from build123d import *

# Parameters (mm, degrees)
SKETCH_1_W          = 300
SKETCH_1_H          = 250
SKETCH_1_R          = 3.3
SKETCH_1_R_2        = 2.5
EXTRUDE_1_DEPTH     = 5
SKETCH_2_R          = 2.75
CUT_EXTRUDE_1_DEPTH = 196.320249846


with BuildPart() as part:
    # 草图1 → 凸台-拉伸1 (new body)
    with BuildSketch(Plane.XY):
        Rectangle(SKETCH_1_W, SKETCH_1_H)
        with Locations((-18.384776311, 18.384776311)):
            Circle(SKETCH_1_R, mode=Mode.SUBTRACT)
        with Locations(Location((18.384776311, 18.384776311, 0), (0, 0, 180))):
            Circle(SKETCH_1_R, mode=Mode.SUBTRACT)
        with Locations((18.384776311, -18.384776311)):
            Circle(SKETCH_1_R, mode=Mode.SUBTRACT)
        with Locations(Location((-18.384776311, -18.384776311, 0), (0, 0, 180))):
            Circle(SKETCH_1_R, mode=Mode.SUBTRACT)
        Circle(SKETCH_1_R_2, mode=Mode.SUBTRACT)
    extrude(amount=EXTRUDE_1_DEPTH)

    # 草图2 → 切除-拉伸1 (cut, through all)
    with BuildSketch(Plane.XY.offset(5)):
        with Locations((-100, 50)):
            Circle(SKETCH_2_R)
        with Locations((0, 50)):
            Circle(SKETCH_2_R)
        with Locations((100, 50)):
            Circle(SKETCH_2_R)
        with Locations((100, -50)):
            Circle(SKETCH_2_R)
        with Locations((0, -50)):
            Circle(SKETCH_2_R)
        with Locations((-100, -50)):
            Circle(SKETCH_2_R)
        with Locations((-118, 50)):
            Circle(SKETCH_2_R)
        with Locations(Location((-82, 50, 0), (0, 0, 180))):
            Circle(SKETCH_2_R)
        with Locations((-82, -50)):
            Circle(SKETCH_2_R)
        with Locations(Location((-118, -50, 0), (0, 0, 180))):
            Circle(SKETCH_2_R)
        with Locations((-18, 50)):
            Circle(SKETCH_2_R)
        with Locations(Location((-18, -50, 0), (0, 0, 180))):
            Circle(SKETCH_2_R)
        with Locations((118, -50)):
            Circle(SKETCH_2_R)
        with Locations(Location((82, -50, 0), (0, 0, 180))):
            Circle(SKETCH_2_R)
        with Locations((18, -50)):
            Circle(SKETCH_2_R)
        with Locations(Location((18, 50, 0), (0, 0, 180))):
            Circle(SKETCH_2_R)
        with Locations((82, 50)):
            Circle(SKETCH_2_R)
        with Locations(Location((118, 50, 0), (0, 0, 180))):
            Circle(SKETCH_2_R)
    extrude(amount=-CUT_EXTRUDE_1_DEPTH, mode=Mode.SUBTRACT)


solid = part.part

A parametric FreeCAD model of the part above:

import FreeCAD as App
import Part
import Sketcher

doc = App.newDocument("Part")
params = doc.addObject("Spreadsheet::Sheet", "Params")
for row, (alias, value) in enumerate([
    ("sketch1_diameter", "5 mm"),
    ("sketch1_diameter2", "6.6 mm"),
    ("sketch1_width", "300 mm"),
    ("sketch1_height", "250 mm"),
    ("pad1_length", "5 mm"),
    ("sketch2_diameter", "5.5 mm"),
], start=1):
    params.set(f"A{row}", alias)
    params.set(f"B{row}", "=" + value)
    params.setAlias(f"B{row}", alias)

body = doc.addObject("PartDesign::Body", "Body")

# Sketch on XY plane
sketch1 = doc.addObject("Sketcher::SketchObject", "Sketch")
body.addObject(sketch1)
sketch1.AttachmentSupport = (doc.XY_Plane, [""])
sketch1.MapMode = "FlatFace"
sketch1.addGeometry([
    Part.LineSegment(App.Vector(-150, 125, 0), App.Vector(-150, -125, 0)),  # 0
    Part.LineSegment(App.Vector(-150, -125, 0), App.Vector(150, -125, 0)),  # 1
    Part.LineSegment(App.Vector(150, -125, 0), App.Vector(150, 125, 0)),  # 2
    Part.LineSegment(App.Vector(150, 125, 0), App.Vector(-150, 125, 0)),  # 3
    Part.Circle(App.Vector(-18.4, -18.4, 0), App.Vector(0, 0, 1), 3.3),  # 4
    Part.Circle(App.Vector(18.4, -18.4, 0), App.Vector(0, 0, 1), 3.3),  # 5
    Part.Circle(App.Vector(-18.4, 18.4, 0), App.Vector(0, 0, 1), 3.3),  # 6
    Part.Circle(App.Vector(0, 0, 0), App.Vector(0, 0, 1), 2.5),  # 7
    Part.Circle(App.Vector(18.4, 18.4, 0), App.Vector(0, 0, 1), 3.3),  # 8
], False)
sketch1.addConstraint([
    Sketcher.Constraint("Coincident", 0, 2, 1, 1),
    Sketcher.Constraint("Coincident", 1, 2, 2, 1),
    Sketcher.Constraint("Coincident", 2, 2, 3, 1),
    Sketcher.Constraint("Coincident", 3, 2, 0, 1),
    Sketcher.Constraint("Vertical", 0),
    Sketcher.Constraint("Horizontal", 1),
    Sketcher.Constraint("Vertical", 2),
    Sketcher.Constraint("Horizontal", 3),
    Sketcher.Constraint("Coincident", 7, 3, -1, 1),
    Sketcher.Constraint("Equal", 4, 5),
    Sketcher.Constraint("Equal", 5, 6),
    Sketcher.Constraint("Equal", 6, 8),
    Sketcher.Constraint("Symmetric", 5, 3, 6, 3, -1, 1),
    Sketcher.Constraint("Symmetric", 4, 3, 8, 3, -1, 1),
    Sketcher.Constraint("Symmetric", 0, 2, 2, 2, -1, 1),
    Sketcher.Constraint("Symmetric", 4, 3, 5, 3, -2),
    Sketcher.Constraint("Diameter", 7, 5.0),
    Sketcher.Constraint("Diameter", 4, 6.6),
    Sketcher.Constraint("DistanceX", 1, 1, 1, 2, 300.0),
    Sketcher.Constraint("DistanceY", 0, 2, 0, 1, 250.0),
    Sketcher.Constraint("DistanceX", 4, 3, -1, 1, 18.384776),
    Sketcher.Constraint("DistanceY", 4, 3, -1, 1, 18.384776),
])
sketch1.setExpression("Constraints[16]", "Params.sketch1_diameter")
sketch1.setExpression("Constraints[17]", "Params.sketch1_diameter2")
sketch1.setExpression("Constraints[18]", "Params.sketch1_width")
sketch1.setExpression("Constraints[19]", "Params.sketch1_height")
pad1 = doc.addObject("PartDesign::Pad", "Pad")
body.addObject(pad1)
pad1.Profile = sketch1
pad1.setExpression("Length", "Params.pad1_length")

# Sketch on XY plane
sketch2 = doc.addObject("Sketcher::SketchObject", "Sketch001")
body.addObject(sketch2)
sketch2.AttachmentSupport = (doc.XY_Plane, [""])
sketch2.MapMode = "FlatFace"
sketch2.AttachmentOffset = App.Placement(App.Vector(0, 0, 5), App.Rotation())
sketch2.addGeometry([
    Part.Circle(App.Vector(-100, 50, 0), App.Vector(0, 0, 1), 2.8),  # 0
    Part.Circle(App.Vector(0, 50, 0), App.Vector(0, 0, 1), 2.8),  # 1
    Part.Circle(App.Vector(100, 50, 0), App.Vector(0, 0, 1), 2.8),  # 2
    Part.Circle(App.Vector(100, -50, 0), App.Vector(0, 0, 1), 2.8),  # 3
    Part.Circle(App.Vector(0, -50, 0), App.Vector(0, 0, 1), 2.8),  # 4
    Part.Circle(App.Vector(-100, -50, 0), App.Vector(0, 0, 1), 2.8),  # 5
    Part.Circle(App.Vector(-118, 50, 0), App.Vector(0, 0, 1), 2.8),  # 6
    Part.Circle(App.Vector(-82, 50, 0), App.Vector(0, 0, 1), 2.8),  # 7
    Part.Circle(App.Vector(-82, -50, 0), App.Vector(0, 0, 1), 2.8),  # 8
    Part.Circle(App.Vector(-118, -50, 0), App.Vector(0, 0, 1), 2.8),  # 9
    Part.Circle(App.Vector(-18, 50, 0), App.Vector(0, 0, 1), 2.8),  # 10
    Part.Circle(App.Vector(-18, -50, 0), App.Vector(0, 0, 1), 2.8),  # 11
    Part.Circle(App.Vector(118, -50, 0), App.Vector(0, 0, 1), 2.8),  # 12
    Part.Circle(App.Vector(82, -50, 0), App.Vector(0, 0, 1), 2.8),  # 13
    Part.Circle(App.Vector(18, -50, 0), App.Vector(0, 0, 1), 2.8),  # 14
    Part.Circle(App.Vector(18, 50, 0), App.Vector(0, 0, 1), 2.8),  # 15
    Part.Circle(App.Vector(82, 50, 0), App.Vector(0, 0, 1), 2.8),  # 16
    Part.Circle(App.Vector(118, 50, 0), App.Vector(0, 0, 1), 2.8),  # 17
], False)
sketch2.addConstraint([
    Sketcher.Constraint("Equal", 0, 1),
    Sketcher.Constraint("Equal", 1, 2),
    Sketcher.Constraint("Equal", 2, 3),
    Sketcher.Constraint("Equal", 3, 4),
    Sketcher.Constraint("Equal", 4, 5),
    Sketcher.Constraint("Equal", 5, 6),
    Sketcher.Constraint("Equal", 6, 7),
    Sketcher.Constraint("Equal", 7, 8),
    Sketcher.Constraint("Equal", 8, 9),
    Sketcher.Constraint("Equal", 9, 10),
    Sketcher.Constraint("Equal", 10, 11),
    Sketcher.Constraint("Equal", 11, 12),
    Sketcher.Constraint("Equal", 12, 13),
    Sketcher.Constraint("Equal", 13, 14),
    Sketcher.Constraint("Equal", 14, 15),
    Sketcher.Constraint("Equal", 15, 16),
    Sketcher.Constraint("Equal", 16, 17),
    Sketcher.Constraint("Symmetric", 0, 3, 3, 3, -1, 1),
    Sketcher.Constraint("Symmetric", 1, 3, 4, 3, -1, 1),
    Sketcher.Constraint("Symmetric", 2, 3, 5, 3, -1, 1),
    Sketcher.Constraint("Symmetric", 6, 3, 12, 3, -1, 1),
    Sketcher.Constraint("Symmetric", 7, 3, 13, 3, -1, 1),
    Sketcher.Constraint("Symmetric", 10, 3, 14, 3, -1, 1),
    Sketcher.Constraint("Symmetric", 11, 3, 15, 3, -1, 1),
    Sketcher.Constraint("Symmetric", 8, 3, 16, 3, -1, 1),
    Sketcher.Constraint("Symmetric", 9, 3, 17, 3, -1, 1),
    Sketcher.Constraint("Symmetric", 0, 3, 2, 3, -2),
    Sketcher.Constraint("Symmetric", 9, 3, 12, 3, -2),
    Sketcher.Constraint("Symmetric", 8, 3, 13, 3, -2),
    Sketcher.Constraint("Symmetric", 11, 3, 14, 3, -2),
    Sketcher.Constraint("PointOnObject", 1, 3, -2),
    Sketcher.Constraint("Horizontal", 0, 3, 1, 3),
    Sketcher.Constraint("Horizontal", 2, 3, 6, 3),
    Sketcher.Constraint("Horizontal", 6, 3, 7, 3),
    Sketcher.Constraint("Horizontal", 7, 3, 10, 3),
    Sketcher.Constraint("Diameter", 0, 5.5),
    Sketcher.Constraint("DistanceX", 0, 3, -1, 1, 100.0),
    Sketcher.Constraint("DistanceY", -1, 1, 0, 3, 50.0),
    Sketcher.Constraint("DistanceX", 6, 3, -1, 1, 118.0),
    Sketcher.Constraint("DistanceX", 7, 3, -1, 1, 82.0),
    Sketcher.Constraint("DistanceX", 10, 3, -1, 1, 18.0),
])
sketch2.setExpression("Constraints[35]", "Params.sketch2_diameter")
pocket1 = doc.addObject("PartDesign::Pocket", "Pocket")
body.addObject(pocket1)
pocket1.Profile = sketch2
pocket1.Type = "ThroughAll"

doc.recompute()
